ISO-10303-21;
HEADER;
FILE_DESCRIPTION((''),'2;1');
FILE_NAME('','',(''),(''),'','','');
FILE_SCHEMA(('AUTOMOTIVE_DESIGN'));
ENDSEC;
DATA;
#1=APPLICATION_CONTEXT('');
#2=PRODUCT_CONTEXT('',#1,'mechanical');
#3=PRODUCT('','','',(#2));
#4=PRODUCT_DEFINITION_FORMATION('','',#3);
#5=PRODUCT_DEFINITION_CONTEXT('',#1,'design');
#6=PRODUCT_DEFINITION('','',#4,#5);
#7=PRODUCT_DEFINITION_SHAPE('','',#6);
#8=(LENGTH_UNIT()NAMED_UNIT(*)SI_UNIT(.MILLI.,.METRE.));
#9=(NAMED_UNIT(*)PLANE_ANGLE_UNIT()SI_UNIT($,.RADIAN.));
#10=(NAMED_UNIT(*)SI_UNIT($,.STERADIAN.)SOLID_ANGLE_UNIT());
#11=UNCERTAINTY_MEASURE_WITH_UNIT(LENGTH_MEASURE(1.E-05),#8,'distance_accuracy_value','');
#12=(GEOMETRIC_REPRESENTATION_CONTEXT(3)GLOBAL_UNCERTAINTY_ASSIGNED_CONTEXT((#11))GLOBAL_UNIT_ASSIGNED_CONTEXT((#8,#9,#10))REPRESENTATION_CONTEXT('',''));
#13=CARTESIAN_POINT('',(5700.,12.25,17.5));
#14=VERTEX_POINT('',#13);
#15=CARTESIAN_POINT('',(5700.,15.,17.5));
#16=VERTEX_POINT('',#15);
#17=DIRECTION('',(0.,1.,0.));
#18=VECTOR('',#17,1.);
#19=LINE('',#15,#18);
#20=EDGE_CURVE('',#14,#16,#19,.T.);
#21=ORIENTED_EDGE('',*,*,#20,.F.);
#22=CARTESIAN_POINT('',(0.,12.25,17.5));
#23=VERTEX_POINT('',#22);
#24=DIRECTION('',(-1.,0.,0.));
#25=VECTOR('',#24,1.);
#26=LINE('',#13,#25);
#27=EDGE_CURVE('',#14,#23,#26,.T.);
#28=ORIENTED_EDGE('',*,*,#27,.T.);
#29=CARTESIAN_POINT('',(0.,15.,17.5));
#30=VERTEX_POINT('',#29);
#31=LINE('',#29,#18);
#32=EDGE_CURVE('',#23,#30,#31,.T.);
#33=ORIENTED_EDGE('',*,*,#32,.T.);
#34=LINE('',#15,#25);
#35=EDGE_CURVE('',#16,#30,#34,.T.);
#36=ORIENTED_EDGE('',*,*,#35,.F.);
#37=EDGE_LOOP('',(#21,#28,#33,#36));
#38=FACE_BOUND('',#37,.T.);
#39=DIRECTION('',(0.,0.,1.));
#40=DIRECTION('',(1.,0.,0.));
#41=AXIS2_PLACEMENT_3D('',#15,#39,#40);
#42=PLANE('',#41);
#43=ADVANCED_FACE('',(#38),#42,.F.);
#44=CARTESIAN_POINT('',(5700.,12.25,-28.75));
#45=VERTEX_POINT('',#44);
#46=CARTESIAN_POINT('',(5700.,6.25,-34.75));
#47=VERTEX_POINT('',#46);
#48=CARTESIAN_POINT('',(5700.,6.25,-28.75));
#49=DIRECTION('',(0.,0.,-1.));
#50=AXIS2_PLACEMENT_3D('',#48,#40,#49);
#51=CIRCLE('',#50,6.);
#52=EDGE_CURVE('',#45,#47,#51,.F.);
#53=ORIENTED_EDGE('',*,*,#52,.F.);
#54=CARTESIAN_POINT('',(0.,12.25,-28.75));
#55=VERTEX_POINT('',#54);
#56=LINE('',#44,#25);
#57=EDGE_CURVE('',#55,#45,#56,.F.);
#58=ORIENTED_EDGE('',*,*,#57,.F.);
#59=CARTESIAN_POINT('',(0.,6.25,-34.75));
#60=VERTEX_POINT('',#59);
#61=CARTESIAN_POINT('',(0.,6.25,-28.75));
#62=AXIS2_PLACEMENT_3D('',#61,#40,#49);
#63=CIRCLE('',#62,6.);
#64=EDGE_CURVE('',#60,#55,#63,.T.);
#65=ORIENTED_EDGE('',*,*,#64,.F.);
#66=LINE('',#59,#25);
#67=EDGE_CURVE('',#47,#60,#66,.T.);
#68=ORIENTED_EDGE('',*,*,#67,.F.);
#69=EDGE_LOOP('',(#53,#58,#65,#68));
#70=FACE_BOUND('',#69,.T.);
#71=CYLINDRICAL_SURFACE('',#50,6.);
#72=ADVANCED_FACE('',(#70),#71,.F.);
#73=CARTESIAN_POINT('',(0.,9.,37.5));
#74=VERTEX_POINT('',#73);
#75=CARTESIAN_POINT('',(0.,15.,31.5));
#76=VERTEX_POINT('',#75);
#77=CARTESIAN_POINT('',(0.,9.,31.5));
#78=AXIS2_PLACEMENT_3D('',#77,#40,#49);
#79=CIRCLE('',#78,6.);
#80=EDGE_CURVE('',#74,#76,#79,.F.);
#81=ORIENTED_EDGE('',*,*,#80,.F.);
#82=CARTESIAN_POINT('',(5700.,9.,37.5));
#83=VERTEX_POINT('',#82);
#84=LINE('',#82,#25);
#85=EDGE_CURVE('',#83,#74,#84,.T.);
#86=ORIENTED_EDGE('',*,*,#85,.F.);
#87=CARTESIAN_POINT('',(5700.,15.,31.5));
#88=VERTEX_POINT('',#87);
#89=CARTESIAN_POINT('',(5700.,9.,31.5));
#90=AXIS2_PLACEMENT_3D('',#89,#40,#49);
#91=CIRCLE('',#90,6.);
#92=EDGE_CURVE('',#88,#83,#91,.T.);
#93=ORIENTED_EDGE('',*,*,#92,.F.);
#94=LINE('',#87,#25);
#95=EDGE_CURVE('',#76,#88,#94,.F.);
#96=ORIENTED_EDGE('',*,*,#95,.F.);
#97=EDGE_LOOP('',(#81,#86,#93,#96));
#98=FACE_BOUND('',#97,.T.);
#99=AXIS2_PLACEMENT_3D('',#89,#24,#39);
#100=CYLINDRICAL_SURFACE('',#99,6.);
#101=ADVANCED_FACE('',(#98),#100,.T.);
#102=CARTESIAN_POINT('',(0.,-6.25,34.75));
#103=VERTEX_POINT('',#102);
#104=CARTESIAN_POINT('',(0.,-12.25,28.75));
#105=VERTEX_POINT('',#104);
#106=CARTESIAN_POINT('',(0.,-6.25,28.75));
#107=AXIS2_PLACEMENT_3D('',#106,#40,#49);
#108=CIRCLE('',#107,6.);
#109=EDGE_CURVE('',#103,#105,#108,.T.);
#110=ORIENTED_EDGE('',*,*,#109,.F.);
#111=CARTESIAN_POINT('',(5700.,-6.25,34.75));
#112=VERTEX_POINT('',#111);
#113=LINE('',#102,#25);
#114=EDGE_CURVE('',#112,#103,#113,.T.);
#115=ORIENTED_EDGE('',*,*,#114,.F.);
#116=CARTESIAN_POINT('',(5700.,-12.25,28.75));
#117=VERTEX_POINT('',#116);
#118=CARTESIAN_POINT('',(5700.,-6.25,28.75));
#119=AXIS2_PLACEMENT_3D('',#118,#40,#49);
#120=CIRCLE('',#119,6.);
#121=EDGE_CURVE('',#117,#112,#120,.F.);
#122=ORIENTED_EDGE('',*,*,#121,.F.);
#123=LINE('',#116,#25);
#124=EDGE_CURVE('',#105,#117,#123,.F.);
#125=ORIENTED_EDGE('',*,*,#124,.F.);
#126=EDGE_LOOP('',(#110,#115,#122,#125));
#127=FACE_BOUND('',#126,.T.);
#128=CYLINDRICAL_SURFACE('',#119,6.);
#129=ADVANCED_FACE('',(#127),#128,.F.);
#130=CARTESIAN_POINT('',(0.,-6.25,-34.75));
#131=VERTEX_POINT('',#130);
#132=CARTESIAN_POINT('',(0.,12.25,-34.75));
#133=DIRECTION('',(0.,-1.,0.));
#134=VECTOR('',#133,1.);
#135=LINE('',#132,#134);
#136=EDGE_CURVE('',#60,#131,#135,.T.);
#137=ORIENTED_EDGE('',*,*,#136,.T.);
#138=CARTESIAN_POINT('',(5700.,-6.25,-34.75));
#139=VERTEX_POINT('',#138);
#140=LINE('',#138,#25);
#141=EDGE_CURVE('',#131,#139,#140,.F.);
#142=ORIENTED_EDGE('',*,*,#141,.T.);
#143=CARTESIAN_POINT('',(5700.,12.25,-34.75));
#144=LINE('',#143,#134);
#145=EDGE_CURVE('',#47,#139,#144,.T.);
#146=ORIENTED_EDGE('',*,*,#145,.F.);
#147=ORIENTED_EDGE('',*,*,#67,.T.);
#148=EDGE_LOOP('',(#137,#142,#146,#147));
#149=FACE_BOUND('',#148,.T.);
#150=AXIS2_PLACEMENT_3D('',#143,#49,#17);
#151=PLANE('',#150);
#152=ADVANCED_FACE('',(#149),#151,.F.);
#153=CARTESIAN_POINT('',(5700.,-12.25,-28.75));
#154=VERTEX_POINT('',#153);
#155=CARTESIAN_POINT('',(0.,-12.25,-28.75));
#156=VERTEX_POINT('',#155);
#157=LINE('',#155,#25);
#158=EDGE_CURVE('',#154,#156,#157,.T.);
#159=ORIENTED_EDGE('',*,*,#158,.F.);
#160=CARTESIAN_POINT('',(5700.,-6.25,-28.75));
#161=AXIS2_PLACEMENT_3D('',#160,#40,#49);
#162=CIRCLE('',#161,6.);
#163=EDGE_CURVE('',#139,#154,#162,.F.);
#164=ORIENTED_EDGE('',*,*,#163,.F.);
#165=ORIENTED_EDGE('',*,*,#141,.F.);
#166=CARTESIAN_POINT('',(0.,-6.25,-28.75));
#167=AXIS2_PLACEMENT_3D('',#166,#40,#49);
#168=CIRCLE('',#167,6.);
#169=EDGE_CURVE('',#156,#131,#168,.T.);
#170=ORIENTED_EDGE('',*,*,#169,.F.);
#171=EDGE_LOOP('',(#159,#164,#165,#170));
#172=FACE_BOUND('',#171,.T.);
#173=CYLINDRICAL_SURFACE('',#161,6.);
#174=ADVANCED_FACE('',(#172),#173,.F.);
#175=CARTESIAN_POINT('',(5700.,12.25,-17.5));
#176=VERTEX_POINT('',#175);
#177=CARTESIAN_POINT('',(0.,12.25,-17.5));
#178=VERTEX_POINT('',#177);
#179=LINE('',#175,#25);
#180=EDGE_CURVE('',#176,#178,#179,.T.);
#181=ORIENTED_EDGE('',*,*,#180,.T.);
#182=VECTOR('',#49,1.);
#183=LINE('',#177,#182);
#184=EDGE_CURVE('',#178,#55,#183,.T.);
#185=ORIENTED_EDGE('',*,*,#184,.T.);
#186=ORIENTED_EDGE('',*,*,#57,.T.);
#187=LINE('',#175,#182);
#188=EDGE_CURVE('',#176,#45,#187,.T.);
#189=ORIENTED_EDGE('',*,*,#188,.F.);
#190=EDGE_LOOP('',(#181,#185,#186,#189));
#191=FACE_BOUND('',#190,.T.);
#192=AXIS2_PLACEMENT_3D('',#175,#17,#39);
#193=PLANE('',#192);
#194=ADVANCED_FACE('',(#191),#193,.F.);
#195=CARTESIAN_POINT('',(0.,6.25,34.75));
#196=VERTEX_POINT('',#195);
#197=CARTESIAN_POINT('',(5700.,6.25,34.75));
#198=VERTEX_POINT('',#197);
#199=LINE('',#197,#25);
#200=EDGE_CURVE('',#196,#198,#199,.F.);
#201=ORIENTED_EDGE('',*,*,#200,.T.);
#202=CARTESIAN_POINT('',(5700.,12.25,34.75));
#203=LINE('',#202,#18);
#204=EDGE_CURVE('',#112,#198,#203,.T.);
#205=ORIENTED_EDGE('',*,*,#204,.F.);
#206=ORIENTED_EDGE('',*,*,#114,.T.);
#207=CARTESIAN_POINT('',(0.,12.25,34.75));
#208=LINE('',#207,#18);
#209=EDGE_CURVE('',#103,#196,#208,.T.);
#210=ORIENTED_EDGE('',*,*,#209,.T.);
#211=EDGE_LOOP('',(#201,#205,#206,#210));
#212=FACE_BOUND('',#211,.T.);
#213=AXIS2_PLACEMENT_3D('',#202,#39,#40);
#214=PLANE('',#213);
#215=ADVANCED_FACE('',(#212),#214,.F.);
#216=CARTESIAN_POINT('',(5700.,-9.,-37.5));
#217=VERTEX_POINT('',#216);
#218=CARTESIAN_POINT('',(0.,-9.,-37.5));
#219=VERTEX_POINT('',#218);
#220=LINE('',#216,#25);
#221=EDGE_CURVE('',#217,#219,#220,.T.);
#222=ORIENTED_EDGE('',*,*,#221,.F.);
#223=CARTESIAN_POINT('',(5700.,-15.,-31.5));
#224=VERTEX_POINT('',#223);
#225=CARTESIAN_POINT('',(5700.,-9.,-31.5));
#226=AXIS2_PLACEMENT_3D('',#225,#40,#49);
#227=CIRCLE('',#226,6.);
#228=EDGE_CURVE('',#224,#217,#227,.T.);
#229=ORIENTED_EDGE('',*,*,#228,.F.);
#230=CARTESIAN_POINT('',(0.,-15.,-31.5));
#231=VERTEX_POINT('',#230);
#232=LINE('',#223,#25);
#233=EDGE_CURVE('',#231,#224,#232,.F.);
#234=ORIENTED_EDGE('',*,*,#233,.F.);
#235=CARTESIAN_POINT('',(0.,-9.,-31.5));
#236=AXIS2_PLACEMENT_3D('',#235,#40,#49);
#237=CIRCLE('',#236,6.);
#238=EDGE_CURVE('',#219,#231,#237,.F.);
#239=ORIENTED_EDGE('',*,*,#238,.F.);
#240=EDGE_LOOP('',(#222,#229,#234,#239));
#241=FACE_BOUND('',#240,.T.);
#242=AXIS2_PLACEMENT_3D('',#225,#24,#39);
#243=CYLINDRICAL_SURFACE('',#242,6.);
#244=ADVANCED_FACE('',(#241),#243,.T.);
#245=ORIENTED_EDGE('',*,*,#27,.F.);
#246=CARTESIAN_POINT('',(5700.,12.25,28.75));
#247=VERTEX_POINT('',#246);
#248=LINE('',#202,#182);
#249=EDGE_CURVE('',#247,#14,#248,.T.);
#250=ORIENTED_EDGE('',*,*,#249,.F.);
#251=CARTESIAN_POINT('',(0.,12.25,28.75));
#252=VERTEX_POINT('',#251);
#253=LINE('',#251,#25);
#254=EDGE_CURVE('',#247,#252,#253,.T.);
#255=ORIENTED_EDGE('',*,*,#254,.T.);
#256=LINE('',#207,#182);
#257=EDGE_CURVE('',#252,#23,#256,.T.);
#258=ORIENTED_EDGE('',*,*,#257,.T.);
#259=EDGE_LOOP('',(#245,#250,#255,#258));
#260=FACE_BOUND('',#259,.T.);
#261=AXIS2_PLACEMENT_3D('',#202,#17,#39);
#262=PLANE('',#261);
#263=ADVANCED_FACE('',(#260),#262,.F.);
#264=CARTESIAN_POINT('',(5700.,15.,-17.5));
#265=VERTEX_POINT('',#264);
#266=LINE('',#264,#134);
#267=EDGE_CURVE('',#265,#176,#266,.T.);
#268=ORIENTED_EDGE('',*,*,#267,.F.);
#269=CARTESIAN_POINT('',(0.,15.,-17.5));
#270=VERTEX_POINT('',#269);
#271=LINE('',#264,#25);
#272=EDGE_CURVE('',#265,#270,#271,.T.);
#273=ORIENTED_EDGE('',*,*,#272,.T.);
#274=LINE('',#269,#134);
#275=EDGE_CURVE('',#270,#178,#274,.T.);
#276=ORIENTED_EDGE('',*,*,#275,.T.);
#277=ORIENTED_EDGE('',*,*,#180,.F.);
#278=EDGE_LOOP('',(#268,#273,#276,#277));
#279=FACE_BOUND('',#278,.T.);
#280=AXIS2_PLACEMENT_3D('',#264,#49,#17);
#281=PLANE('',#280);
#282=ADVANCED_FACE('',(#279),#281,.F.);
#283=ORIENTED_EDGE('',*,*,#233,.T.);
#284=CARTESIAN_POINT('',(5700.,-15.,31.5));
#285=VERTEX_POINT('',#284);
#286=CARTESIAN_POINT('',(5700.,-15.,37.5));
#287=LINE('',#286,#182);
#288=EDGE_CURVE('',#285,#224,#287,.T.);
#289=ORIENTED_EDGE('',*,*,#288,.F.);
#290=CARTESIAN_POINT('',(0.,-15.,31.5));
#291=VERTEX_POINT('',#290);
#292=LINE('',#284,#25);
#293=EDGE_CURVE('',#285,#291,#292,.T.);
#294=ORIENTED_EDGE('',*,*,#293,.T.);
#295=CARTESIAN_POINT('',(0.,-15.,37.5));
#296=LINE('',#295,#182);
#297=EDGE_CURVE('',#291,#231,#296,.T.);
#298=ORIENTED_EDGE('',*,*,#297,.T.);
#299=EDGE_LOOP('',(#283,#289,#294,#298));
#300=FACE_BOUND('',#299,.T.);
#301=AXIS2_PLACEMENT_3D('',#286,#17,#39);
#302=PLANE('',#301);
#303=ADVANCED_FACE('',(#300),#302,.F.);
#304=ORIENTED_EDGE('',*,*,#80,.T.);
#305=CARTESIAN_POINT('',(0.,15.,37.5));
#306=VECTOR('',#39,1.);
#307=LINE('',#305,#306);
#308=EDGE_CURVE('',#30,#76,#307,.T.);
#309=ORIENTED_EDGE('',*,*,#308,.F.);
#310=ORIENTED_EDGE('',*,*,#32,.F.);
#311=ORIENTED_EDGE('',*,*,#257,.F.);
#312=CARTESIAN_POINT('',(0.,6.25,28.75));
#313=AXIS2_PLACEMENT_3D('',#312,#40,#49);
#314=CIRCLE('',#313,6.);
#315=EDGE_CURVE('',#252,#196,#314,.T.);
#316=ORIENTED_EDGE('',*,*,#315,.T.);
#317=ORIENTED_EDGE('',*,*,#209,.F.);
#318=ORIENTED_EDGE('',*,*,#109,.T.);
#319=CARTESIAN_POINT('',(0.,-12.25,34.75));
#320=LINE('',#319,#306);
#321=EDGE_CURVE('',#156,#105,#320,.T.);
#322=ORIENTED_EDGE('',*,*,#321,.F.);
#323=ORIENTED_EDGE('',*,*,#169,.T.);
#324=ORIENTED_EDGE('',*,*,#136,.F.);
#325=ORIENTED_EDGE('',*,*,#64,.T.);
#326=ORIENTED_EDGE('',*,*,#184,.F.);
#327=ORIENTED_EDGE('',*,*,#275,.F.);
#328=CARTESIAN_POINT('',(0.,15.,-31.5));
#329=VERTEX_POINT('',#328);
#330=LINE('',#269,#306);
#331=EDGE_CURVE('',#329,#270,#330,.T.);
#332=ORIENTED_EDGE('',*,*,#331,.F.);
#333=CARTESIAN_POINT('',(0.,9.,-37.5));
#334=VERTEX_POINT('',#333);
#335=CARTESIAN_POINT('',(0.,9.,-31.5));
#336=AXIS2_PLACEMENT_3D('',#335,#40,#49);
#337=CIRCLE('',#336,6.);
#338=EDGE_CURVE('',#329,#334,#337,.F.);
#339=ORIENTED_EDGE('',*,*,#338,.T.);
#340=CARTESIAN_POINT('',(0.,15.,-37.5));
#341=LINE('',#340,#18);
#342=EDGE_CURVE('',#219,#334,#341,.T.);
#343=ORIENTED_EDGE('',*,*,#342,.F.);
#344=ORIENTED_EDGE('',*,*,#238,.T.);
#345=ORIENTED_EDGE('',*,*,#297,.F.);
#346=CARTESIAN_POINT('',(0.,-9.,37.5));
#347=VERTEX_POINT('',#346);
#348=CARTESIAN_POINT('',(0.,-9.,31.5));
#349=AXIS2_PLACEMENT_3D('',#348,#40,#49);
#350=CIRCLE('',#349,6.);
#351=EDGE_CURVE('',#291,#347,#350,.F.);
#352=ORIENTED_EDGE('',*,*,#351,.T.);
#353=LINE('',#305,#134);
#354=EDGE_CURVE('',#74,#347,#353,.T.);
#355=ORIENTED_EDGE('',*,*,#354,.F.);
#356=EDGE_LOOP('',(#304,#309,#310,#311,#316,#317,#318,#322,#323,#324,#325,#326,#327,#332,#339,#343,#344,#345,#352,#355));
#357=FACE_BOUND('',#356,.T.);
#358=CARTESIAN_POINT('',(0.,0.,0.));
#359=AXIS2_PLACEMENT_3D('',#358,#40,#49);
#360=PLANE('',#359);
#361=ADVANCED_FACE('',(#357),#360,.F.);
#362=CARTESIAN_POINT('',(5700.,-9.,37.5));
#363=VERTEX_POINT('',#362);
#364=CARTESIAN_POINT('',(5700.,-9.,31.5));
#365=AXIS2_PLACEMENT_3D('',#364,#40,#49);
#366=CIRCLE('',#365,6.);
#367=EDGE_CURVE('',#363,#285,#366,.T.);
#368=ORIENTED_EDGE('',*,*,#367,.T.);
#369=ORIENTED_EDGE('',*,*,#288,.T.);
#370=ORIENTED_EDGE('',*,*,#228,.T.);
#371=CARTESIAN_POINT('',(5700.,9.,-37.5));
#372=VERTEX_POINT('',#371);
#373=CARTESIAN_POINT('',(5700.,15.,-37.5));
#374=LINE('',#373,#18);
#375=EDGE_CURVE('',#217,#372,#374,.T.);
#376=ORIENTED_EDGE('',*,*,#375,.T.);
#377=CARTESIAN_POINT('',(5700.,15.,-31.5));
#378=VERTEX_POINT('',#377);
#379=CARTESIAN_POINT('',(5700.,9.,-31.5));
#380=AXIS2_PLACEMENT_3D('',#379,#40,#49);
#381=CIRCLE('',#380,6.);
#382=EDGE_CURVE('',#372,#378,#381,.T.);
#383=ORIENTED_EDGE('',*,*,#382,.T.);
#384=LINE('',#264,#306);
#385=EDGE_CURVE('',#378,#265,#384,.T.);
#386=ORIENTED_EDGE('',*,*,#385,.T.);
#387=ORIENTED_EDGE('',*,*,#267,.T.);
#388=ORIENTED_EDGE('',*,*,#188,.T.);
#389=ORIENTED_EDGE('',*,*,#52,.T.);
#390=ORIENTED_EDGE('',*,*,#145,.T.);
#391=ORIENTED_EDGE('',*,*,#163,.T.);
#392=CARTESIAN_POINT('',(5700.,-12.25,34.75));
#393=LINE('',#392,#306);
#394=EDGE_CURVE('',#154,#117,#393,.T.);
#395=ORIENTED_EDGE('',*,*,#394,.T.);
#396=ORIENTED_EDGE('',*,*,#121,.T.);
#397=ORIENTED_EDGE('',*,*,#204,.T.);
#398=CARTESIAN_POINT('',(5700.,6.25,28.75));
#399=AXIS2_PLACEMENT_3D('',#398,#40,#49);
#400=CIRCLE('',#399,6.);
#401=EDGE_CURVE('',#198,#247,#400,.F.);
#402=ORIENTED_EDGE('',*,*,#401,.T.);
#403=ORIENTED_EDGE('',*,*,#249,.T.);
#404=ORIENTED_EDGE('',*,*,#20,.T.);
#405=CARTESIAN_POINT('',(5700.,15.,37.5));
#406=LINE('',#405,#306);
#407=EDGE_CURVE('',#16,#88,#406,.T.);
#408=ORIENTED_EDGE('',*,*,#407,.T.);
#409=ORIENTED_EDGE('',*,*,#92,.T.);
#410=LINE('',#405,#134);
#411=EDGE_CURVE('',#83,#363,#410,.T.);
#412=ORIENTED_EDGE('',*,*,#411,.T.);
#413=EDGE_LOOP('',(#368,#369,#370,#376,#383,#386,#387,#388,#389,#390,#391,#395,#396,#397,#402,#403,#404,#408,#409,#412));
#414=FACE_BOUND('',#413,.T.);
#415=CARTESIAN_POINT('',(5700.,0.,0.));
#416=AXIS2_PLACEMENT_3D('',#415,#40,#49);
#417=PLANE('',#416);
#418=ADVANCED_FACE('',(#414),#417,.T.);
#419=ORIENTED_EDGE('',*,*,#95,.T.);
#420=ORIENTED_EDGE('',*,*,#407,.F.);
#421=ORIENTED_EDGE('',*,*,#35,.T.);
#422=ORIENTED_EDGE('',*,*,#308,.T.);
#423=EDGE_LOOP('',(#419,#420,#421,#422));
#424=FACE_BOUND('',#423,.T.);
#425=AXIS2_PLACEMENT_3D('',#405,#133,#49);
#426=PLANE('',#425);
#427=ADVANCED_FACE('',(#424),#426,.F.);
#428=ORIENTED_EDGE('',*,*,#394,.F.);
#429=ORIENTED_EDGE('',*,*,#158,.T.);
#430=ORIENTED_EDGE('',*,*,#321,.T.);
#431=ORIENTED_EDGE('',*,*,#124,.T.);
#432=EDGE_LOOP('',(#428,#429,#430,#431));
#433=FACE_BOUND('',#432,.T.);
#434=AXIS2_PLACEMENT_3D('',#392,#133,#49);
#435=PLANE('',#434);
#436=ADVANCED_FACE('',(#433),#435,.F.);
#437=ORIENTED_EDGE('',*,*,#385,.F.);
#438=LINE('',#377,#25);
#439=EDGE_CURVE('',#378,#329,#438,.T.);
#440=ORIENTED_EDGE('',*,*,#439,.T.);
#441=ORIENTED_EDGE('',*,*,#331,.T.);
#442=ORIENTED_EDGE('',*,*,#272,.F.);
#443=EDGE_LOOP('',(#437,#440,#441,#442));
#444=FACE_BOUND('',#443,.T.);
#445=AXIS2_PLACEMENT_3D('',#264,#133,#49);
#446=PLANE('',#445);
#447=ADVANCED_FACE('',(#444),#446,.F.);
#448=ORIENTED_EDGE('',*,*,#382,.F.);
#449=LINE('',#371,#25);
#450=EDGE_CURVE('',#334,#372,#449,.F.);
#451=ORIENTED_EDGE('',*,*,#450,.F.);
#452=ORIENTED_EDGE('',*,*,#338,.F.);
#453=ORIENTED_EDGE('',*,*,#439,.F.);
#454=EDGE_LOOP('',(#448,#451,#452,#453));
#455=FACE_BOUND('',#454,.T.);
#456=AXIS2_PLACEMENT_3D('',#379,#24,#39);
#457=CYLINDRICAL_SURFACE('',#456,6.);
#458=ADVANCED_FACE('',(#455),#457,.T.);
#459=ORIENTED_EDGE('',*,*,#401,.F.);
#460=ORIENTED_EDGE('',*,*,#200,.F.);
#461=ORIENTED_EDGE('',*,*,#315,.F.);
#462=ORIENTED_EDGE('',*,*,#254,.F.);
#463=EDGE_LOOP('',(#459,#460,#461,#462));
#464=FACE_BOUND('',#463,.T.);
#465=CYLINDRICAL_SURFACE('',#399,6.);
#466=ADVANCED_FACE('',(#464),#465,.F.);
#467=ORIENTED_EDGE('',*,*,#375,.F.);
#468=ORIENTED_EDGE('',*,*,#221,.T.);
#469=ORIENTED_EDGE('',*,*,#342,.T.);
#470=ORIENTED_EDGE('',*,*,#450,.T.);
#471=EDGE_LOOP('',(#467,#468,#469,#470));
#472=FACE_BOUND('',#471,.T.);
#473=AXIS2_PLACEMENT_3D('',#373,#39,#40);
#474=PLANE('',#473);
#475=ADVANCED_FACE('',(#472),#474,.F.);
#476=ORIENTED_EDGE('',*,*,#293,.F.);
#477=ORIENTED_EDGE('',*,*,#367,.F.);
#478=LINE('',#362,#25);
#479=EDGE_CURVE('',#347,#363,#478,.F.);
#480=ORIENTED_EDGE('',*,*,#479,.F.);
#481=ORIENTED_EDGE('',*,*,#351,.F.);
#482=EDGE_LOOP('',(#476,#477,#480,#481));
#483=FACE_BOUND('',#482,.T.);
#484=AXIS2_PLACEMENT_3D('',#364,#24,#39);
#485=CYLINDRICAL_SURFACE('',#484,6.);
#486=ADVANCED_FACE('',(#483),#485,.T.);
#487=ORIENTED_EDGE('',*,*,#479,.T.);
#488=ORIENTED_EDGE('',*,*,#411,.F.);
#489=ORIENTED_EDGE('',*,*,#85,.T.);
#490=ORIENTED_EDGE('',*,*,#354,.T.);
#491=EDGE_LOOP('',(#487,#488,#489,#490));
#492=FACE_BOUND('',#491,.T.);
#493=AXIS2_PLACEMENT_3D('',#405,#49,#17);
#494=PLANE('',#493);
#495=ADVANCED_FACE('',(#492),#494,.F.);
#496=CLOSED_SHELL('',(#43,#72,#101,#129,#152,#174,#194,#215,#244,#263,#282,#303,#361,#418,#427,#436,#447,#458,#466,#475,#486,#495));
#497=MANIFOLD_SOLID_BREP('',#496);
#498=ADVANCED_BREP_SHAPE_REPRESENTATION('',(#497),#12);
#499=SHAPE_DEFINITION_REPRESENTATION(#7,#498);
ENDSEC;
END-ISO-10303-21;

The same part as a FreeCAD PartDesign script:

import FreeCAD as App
import Part
import Sketcher


def edges_at(feature, points):
    """Names of the edges that pass closest to the given points."""
    edges = feature.Shape.Edges
    near = lambda p: min(range(len(edges)), key=lambda i: edges[i].distToShape(Part.Vertex(*p))[0])
    return sorted({f"Edge{near(p) + 1}" for p in points})


def add_polygon(sketch, points):
    """Adds a closed chain of lines whose ends are joined by coincident constraints."""
    first, n = sketch.GeometryCount, len(points)
    for a, b in zip(points, points[1:] + points[:1]):
        sketch.addGeometry(Part.LineSegment(App.Vector(*a, 0), App.Vector(*b, 0)), False)
    for i in range(n):
        sketch.addConstraint(Sketcher.Constraint("Coincident", first + i, 2, first + (i + 1) % n, 1))

doc = App.newDocument("Part")
body = doc.addObject("PartDesign::Body", "Body")

# Sketch on YZ plane
sketch1 = body.newObject("Sketcher::SketchObject", "Sketch")
sketch1.AttachmentSupport = (doc.getObject("YZ_Plane"), [""])
sketch1.MapMode = "FlatFace"
add_polygon(sketch1, [(-12.25, 34.75), (12.25, 34.75), (12.25, 17.5), (15, 17.5), (15, 37.5), (-15, 37.5), (-15, -37.5), (15, -37.5), (15, -17.5), (12.25, -17.5), (12.25, -34.75), (-12.25, -34.75)])  # lines 0-11
sketch1.addConstraint([
    Sketcher.Constraint("Horizontal", 0),
    Sketcher.Constraint("Vertical", 1),
    Sketcher.Constraint("Horizontal", 2),
    Sketcher.Constraint("Vertical", 3),
    Sketcher.Constraint("Horizontal", 4),
    Sketcher.Constraint("Vertical", 5),
    Sketcher.Constraint("Horizontal", 6),
    Sketcher.Constraint("Vertical", 7),
    Sketcher.Constraint("Horizontal", 8),
    Sketcher.Constraint("Vertical", 9),
    Sketcher.Constraint("Horizontal", 10),
    Sketcher.Constraint("Vertical", 11),
    Sketcher.Constraint("Symmetric", 3, 2, 5, 2, -1, 1),
    Sketcher.Constraint("Symmetric", 0, 2, 10, 2, -1, 1),
    Sketcher.Constraint("Symmetric", 2, 2, 7, 2, -1),
    Sketcher.Constraint("Vertical", 1, 2, 8, 2),
    Sketcher.Constraint("DistanceX", 4, 2, 4, 1, 30.0),
    Sketcher.Constraint("DistanceY", 3, 1, 3, 2, 20.0),
    Sketcher.Constraint("DistanceY", 5, 2, 5, 1, 75.0),
    Sketcher.Constraint("DistanceX", 0, 1, 0, 2, 24.5),
    Sketcher.Constraint("DistanceY", 11, 1, 11, 2, 69.5),
])
pad1 = body.newObject("PartDesign::Pad", "Pad")
pad1.Profile = sketch1
pad1.Length = 5700
doc.recompute()

fillet = body.newObject("PartDesign::Fillet", "Fillet")
fillet.Base = (pad1, edges_at(pad1, [
    (2850, -15, -37.5),
    (2850, -15, 37.5),
    (2850, 15, 37.5),
    (2850, 12.25, 34.75),
    (2850, -12.25, 34.75),
    (2850, -12.25, -34.75),
    (2850, 12.25, -34.75),
    (2850, 15, -37.5),
]))
fillet.Radius = 6

doc.recompute()
